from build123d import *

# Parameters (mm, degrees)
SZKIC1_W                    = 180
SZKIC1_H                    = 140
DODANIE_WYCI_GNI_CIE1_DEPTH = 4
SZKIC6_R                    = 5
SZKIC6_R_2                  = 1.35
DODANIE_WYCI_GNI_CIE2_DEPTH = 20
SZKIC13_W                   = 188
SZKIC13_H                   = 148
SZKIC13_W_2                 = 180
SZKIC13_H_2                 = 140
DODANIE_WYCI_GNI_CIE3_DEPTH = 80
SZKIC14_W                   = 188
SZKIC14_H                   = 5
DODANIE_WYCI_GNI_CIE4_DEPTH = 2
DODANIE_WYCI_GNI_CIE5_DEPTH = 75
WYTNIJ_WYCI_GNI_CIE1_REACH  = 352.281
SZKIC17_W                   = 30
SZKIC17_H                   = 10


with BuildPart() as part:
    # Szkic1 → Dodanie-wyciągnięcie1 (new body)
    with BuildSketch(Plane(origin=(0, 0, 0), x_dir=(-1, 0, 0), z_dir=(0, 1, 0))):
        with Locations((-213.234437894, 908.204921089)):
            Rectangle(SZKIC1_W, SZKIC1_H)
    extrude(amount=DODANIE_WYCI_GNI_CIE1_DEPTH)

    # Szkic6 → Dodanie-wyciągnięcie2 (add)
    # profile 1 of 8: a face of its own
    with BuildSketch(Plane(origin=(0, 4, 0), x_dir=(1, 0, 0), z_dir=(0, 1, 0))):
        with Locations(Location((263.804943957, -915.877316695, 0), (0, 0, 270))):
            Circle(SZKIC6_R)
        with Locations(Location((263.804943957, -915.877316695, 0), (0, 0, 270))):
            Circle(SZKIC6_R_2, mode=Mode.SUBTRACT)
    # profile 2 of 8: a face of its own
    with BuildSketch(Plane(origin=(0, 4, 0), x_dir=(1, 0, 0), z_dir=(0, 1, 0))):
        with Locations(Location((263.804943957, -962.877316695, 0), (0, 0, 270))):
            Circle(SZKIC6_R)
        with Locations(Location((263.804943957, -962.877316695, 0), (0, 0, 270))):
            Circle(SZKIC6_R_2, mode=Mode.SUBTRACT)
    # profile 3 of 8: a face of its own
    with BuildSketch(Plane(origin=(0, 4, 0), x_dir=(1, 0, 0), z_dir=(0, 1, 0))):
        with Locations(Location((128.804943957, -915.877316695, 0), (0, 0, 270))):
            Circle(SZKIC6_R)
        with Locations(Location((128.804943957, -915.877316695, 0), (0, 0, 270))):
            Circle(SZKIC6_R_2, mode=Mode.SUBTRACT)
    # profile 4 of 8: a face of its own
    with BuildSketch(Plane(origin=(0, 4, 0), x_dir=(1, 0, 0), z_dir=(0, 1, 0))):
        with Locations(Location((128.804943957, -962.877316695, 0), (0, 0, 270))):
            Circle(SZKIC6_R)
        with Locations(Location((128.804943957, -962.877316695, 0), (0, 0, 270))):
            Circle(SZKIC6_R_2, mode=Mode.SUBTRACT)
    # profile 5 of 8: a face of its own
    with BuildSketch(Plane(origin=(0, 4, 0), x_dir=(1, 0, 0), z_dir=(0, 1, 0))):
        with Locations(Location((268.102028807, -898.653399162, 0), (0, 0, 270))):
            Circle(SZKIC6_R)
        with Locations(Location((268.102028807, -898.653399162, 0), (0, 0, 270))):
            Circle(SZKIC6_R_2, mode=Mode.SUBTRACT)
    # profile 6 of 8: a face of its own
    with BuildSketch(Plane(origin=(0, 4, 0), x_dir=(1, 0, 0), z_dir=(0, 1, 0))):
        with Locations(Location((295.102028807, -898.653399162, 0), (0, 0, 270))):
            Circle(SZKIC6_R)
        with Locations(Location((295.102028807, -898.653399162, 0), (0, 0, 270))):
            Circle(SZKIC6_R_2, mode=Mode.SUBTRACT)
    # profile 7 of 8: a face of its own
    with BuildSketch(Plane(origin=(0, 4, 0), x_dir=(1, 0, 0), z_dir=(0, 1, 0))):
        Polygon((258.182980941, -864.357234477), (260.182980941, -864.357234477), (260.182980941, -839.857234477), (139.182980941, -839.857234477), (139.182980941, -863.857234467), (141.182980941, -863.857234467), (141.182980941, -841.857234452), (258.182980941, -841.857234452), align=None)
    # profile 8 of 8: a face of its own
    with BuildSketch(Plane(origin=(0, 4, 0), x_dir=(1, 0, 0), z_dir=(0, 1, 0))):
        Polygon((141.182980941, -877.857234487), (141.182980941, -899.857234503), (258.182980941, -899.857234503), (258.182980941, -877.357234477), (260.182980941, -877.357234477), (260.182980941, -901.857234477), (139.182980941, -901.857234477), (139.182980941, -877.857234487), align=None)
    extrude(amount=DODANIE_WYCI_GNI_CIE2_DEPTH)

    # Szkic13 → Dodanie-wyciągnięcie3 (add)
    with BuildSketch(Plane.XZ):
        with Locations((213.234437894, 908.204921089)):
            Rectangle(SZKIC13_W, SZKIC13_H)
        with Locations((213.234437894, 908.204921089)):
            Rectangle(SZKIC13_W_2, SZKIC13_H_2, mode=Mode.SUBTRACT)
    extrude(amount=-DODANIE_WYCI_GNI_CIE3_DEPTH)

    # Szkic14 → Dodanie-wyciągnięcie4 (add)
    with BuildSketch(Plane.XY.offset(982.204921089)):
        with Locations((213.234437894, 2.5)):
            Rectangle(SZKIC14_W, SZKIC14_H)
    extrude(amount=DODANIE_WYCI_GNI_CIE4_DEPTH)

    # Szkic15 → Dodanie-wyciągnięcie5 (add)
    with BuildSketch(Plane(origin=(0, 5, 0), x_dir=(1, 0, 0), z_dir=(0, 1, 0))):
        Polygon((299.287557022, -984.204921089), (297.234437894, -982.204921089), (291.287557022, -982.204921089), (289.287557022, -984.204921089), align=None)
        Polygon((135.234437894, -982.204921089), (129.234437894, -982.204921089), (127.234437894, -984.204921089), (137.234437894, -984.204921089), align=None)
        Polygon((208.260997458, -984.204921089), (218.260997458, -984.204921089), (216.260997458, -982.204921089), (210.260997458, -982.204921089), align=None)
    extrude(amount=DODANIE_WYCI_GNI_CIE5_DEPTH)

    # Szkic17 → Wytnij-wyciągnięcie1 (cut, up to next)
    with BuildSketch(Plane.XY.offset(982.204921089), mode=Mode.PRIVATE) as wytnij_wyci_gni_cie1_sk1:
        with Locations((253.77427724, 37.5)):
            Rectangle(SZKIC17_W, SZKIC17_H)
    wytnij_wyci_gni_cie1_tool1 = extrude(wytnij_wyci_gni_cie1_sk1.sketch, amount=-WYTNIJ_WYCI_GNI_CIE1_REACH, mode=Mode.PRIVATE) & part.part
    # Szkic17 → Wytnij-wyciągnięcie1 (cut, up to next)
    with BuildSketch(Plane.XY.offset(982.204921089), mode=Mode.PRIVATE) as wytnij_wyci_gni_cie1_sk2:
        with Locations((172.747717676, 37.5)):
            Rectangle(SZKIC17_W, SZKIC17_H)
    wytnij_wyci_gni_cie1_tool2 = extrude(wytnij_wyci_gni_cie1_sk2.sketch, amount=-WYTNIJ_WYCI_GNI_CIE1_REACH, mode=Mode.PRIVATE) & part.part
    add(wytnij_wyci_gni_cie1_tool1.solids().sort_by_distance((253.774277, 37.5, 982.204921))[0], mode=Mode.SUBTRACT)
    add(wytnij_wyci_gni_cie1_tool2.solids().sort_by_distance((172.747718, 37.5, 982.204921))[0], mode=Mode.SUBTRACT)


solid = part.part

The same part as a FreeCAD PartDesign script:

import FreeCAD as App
import Part
import Sketcher

V = App.Vector


def add_polygon(sketch, points):
    """Adds a closed chain of lines whose ends are joined by coincident constraints."""
    first, n = sketch.GeometryCount, len(points)
    for a, b in zip(points, points[1:] + points[:1]):
        sketch.addGeometry(Part.LineSegment(App.Vector(*a, 0), App.Vector(*b, 0)), False)
    for i in range(n):
        sketch.addConstraint(Sketcher.Constraint("Coincident", first + i, 2, first + (i + 1) % n, 1))

doc = App.newDocument("Part")
body = doc.addObject("PartDesign::Body", "Body")

sketch1 = body.newObject("Sketcher::SketchObject", "Sketch")
sketch1.AttachmentSupport = (doc.getObject("XZ_Plane"), [""])
sketch1.MapMode = "FlatFace"
add_polygon(sketch1, [(303.234438, 978.204921), (303.234438, 838.204921), (123.234438, 838.204921), (123.234438, 978.204921)])
sketch1.addConstraint(Sketcher.Constraint("Vertical", 0))
sketch1.addConstraint(Sketcher.Constraint("Horizontal", 1))
sketch1.addConstraint(Sketcher.Constraint("Vertical", 2))
sketch1.addConstraint(Sketcher.Constraint("Horizontal", 3))
sketch1.addConstraint(Sketcher.Constraint("DistanceX", 1, 2, 1, 1, 180.0))
sketch1.addConstraint(Sketcher.Constraint("DistanceY", 0, 2, 0, 1, 140.0))
sketch1.addConstraint(Sketcher.Constraint("DistanceY", -1, 1, 0, 2, 838.204921))
sketch1.addConstraint(Sketcher.Constraint("DistanceX", -1, 1, 0, 2, 303.234438))
pad1 = body.newObject("PartDesign::Pad", "Pad")
pad1.Profile = sketch1
pad1.Length = 4
pad1.Reversed = True

sketch2 = body.newObject("Sketcher::SketchObject", "Sketch001")
sketch2.AttachmentSupport = (doc.getObject("XZ_Plane"), [""])
sketch2.MapMode = "FlatFace"
sketch2.AttachmentOffset = App.Placement(V(0, 0, -4), App.Rotation())
sketch2.addGeometry(Part.Circle(V(263.804944, 915.877317, 0), V(0, 0, 1), 5), False)
sketch2.addGeometry(Part.Circle(V(263.804944, 915.877317, 0), V(0, 0, 1), 1.35), False)
sketch2.addGeometry(Part.Circle(V(263.804944, 962.877317, 0), V(0, 0, 1), 5), False)
sketch2.addGeometry(Part.Circle(V(263.804944, 962.877317, 0), V(0, 0, 1), 1.35), False)
sketch2.addGeometry(Part.Circle(V(128.804944, 915.877317, 0), V(0, 0, 1), 5), False)
sketch2.addGeometry(Part.Circle(V(128.804944, 915.877317, 0), V(0, 0, 1), 1.35), False)
sketch2.addGeometry(Part.Circle(V(128.804944, 962.877317, 0), V(0, 0, 1), 5), False)
sketch2.addGeometry(Part.Circle(V(128.804944, 962.877317, 0), V(0, 0, 1), 1.35), False)
sketch2.addGeometry(Part.Circle(V(268.102029, 898.653399, 0), V(0, 0, 1), 5), False)
sketch2.addGeometry(Part.Circle(V(268.102029, 898.653399, 0), V(0, 0, 1), 1.35), False)
sketch2.addGeometry(Part.Circle(V(295.102029, 898.653399, 0), V(0, 0, 1), 5), False)
sketch2.addGeometry(Part.Circle(V(295.102029, 898.653399, 0), V(0, 0, 1), 1.35), False)
add_polygon(sketch2, [(258.182981, 864.357234), (260.182981, 864.357234), (260.182981, 839.857234), (139.182981, 839.857234), (139.182981, 863.857234), (141.182981, 863.857234), (141.182981, 841.857234), (258.182981, 841.857234)])
add_polygon(sketch2, [(141.182981, 899.857235), (141.182981, 877.857234), (139.182981, 877.857234), (139.182981, 901.857234), (260.182981, 901.857234), (260.182981, 877.357234), (258.182981, 877.357234), (258.182981, 899.857235)])
sketch2.addConstraint(Sketcher.Constraint("Horizontal", 12))
sketch2.addConstraint(Sketcher.Constraint("Vertical", 13))
sketch2.addConstraint(Sketcher.Constraint("Horizontal", 14))
sketch2.addConstraint(Sketcher.Constraint("Vertical", 15))
sketch2.addConstraint(Sketcher.Constraint("Horizontal", 16))
sketch2.addConstraint(Sketcher.Constraint("Vertical", 17))
sketch2.addConstraint(Sketcher.Constraint("Horizontal", 18))
sketch2.addConstraint(Sketcher.Constraint("Vertical", 19))
sketch2.addConstraint(Sketcher.Constraint("Vertical", 20))
sketch2.addConstraint(Sketcher.Constraint("Horizontal", 21))
sketch2.addConstraint(Sketcher.Constraint("Vertical", 22))
sketch2.addConstraint(Sketcher.Constraint("Horizontal", 23))
sketch2.addConstraint(Sketcher.Constraint("Vertical", 24))
sketch2.addConstraint(Sketcher.Constraint("Horizontal", 25))
sketch2.addConstraint(Sketcher.Constraint("Vertical", 26))
sketch2.addConstraint(Sketcher.Constraint("Horizontal", 27))
sketch2.addConstraint(Sketcher.Constraint("Coincident", 1, 3, 0, 3))
sketch2.addConstraint(Sketcher.Constraint("Coincident", 3, 3, 2, 3))
sketch2.addConstraint(Sketcher.Constraint("Coincident", 5, 3, 4, 3))
sketch2.addConstraint(Sketcher.Constraint("Coincident", 7, 3, 6, 3))
sketch2.addConstraint(Sketcher.Constraint("Coincident", 9, 3, 8, 3))
sketch2.addConstraint(Sketcher.Constraint("Coincident", 11, 3, 10, 3))
sketch2.addConstraint(Sketcher.Constraint("Equal", 0, 2))
sketch2.addConstraint(Sketcher.Constraint("Equal", 1, 3))
sketch2.addConstraint(Sketcher.Constraint("Equal", 2, 4))
sketch2.addConstraint(Sketcher.Constraint("Equal", 3, 5))
sketch2.addConstraint(Sketcher.Constraint("Equal", 4, 6))
sketch2.addConstraint(Sketcher.Constraint("Equal", 5, 7))
sketch2.addConstraint(Sketcher.Constraint("Equal", 6, 8))
sketch2.addConstraint(Sketcher.Constraint("Equal", 7, 9))
sketch2.addConstraint(Sketcher.Constraint("Equal", 8, 10))
sketch2.addConstraint(Sketcher.Constraint("Equal", 9, 11))
sketch2.addConstraint(Sketcher.Constraint("Horizontal", 1, 3, 4, 3))
sketch2.addConstraint(Sketcher.Constraint("Horizontal", 3, 3, 6, 3))
sketch2.addConstraint(Sketcher.Constraint("Horizontal", 9, 3, 10, 3))
sketch2.addConstraint(Sketcher.Constraint("Vertical", 1, 3, 2, 3))
sketch2.addConstraint(Sketcher.Constraint("Vertical", 5, 3, 6, 3))
sketch2.addConstraint(Sketcher.Constraint("Vertical", 17, 2, 20, 2))
sketch2.addConstraint(Sketcher.Constraint("Vertical", 15, 2, 21, 2))
sketch2.addConstraint(Sketcher.Constraint("Vertical", 13, 2, 23, 2))
sketch2.addConstraint(Sketcher.Constraint("Vertical", 19, 2, 25, 2))
sketch2.addConstraint(Sketcher.Constraint("Equal", 12, 16))
sketch2.addConstraint(Sketcher.Constraint("Equal", 17, 20))
sketch2.addConstraint(Sketcher.Constraint("Equal", 15, 22))
sketch2.addConstraint(Sketcher.Constraint("Equal", 13, 24))
sketch2.addConstraint(Sketcher.Constraint("Diameter", 0, 10.0))
sketch2.addConstraint(Sketcher.Constraint("Diameter", 1, 2.7))
sketch2.addConstraint(Sketcher.Constraint("DistanceX", 12, 1, 12, 2, 2.0))
sketch2.addConstraint(Sketcher.Constraint("DistanceX", 14, 2, 14, 1, 121.0))
sketch2.addConstraint(Sketcher.Constraint("DistanceY", 15, 1, 15, 2, 24.0))
sketch2.addConstraint(Sketcher.Constraint("DistanceY", 17, 2, 17, 1, 22.0))
sketch2.addConstraint(Sketcher.Constraint("DistanceY", 13, 2, 13, 1, 24.5))
sketch2.addConstraint(Sketcher.Constraint("DistanceY", 0, 3, 2, 3, 47.0))
sketch2.addConstraint(Sketcher.Constraint("DistanceX", 4, 3, 0, 3, 135.0))
sketch2.addConstraint(Sketcher.Constraint("DistanceX", 8, 3, 10, 3, 27.0))
sketch2.addConstraint(Sketcher.Constraint("DistanceY", 16, 2, 20, 2, 14.0))
sketch2.addConstraint(Sketcher.Constraint("DistanceY", -1, 1, 8, 3, 898.653399))
sketch2.addConstraint(Sketcher.Constraint("DistanceX", -1, 1, 8, 3, 268.102029))
sketch2.addConstraint(Sketcher.Constraint("DistanceX", -1, 1, 12, 2, 260.182981))
sketch2.addConstraint(Sketcher.Constraint("DistanceX", -1, 1, 0, 3, 263.804944))
sketch2.addConstraint(Sketcher.Constraint("DistanceY", -1, 1, 0, 3, 915.877317))
sketch2.addConstraint(Sketcher.Constraint("DistanceY", -1, 1, 12, 2, 864.357234))
pad2 = body.newObject("PartDesign::Pad", "Pad001")
pad2.Profile = sketch2
pad2.Length = 20
pad2.Reversed = True

sketch3 = body.newObject("Sketcher::SketchObject", "Sketch002")
sketch3.AttachmentSupport = (doc.getObject("XZ_Plane"), [""])
sketch3.MapMode = "FlatFace"
add_polygon(sketch3, [(119.234438, 982.204921), (119.234438, 834.204921), (307.234438, 834.204921), (307.234438, 982.204921)])
add_polygon(sketch3, [(303.234438, 838.204921), (123.234438, 838.204921), (123.234438, 978.204921), (303.234438, 978.204921)])
sketch3.addConstraint(Sketcher.Constraint("Vertical", 0))
sketch3.addConstraint(Sketcher.Constraint("Horizontal", 1))
sketch3.addConstraint(Sketcher.Constraint("Vertical", 2))
sketch3.addConstraint(Sketcher.Constraint("Horizontal", 3))
sketch3.addConstraint(Sketcher.Constraint("Horizontal", 4))
sketch3.addConstraint(Sketcher.Constraint("Vertical", 5))
sketch3.addConstraint(Sketcher.Constraint("Horizontal", 6))
sketch3.addConstraint(Sketcher.Constraint("Vertical", 7))
sketch3.addConstraint(Sketcher.Constraint("DistanceX", 1, 1, 1, 2, 188.0))
sketch3.addConstraint(Sketcher.Constraint("DistanceX", 4, 2, 4, 1, 180.0))
sketch3.addConstraint(Sketcher.Constraint("DistanceY", 0, 2, 0, 1, 148.0))
sketch3.addConstraint(Sketcher.Constraint("DistanceY", 5, 1, 5, 2, 140.0))
sketch3.addConstraint(Sketcher.Constraint("DistanceX", 0, 2, 4, 2, 4.0))
sketch3.addConstraint(Sketcher.Constraint("DistanceY", 0, 2, 4, 2, 4.0))
sketch3.addConstraint(Sketcher.Constraint("DistanceY", -1, 1, 0, 2, 834.204921))
sketch3.addConstraint(Sketcher.Constraint("DistanceX", -1, 1, 0, 2, 119.234438))
pad3 = body.newObject("PartDesign::Pad", "Pad002")
pad3.Profile = sketch3
pad3.Length = 80
pad3.Reversed = True

sketch4 = body.newObject("Sketcher::SketchObject", "Sketch003")
sketch4.AttachmentSupport = (doc.getObject("XY_Plane"), [""])
sketch4.MapMode = "FlatFace"
sketch4.AttachmentOffset = App.Placement(V(0, 0, 982.204921), App.Rotation())
add_polygon(sketch4, [(119.234438, 5), (119.234438, 0), (307.234438, 0), (307.234438, 5)])
sketch4.addConstraint(Sketcher.Constraint("Vertical", 0))
sketch4.addConstraint(Sketcher.Constraint("Horizontal", 1))
sketch4.addConstraint(Sketcher.Constraint("Vertical", 2))
sketch4.addConstraint(Sketcher.Constraint("Horizontal", 3))
sketch4.addConstraint(Sketcher.Constraint("PointOnObject", 0, 2, -1))
sketch4.addConstraint(Sketcher.Constraint("DistanceX", 1, 1, 1, 2, 188.0))
sketch4.addConstraint(Sketcher.Constraint("DistanceY", 0, 2, 0, 1, 5.0))
sketch4.addConstraint(Sketcher.Constraint("DistanceX", -1, 1, 0, 2, 119.234438))
pad4 = body.newObject("PartDesign::Pad", "Pad003")
pad4.Profile = sketch4
pad4.Length = 2

sketch5 = body.newObject("Sketcher::SketchObject", "Sketch004")
sketch5.AttachmentSupport = (doc.getObject("XZ_Plane"), [""])
sketch5.MapMode = "FlatFace"
sketch5.AttachmentOffset = App.Placement(V(0, 0, -5), App.Rotation())
add_polygon(sketch5, [(299.287557, 984.204921), (297.234438, 982.204921), (291.287557, 982.204921), (289.287557, 984.204921)])
add_polygon(sketch5, [(135.234438, 982.204921), (129.234438, 982.204921), (127.234438, 984.204921), (137.234438, 984.204921)])
add_polygon(sketch5, [(208.260997, 984.204921), (218.260997, 984.204921), (216.260997, 982.204921), (210.260997, 982.204921)])
sketch5.addConstraint(Sketcher.Constraint("Horizontal", 1))
sketch5.addConstraint(Sketcher.Constraint("Horizontal", 3))
sketch5.addConstraint(Sketcher.Constraint("Horizontal", 4))
sketch5.addConstraint(Sketcher.Constraint("Horizontal", 6))
sketch5.addConstraint(Sketcher.Constraint("Horizontal", 8))
sketch5.addConstraint(Sketcher.Constraint("Horizontal", 10))
sketch5.addConstraint(Sketcher.Constraint("Parallel", 2, 5))
sketch5.addConstraint(Sketcher.Constraint("Perpendicular", 5, 7))
sketch5.addConstraint(Sketcher.Constraint("Parallel", 7, 9))
sketch5.addConstraint(Sketcher.Constraint("Perpendicular", 9, 11))
sketch5.addConstraint(Sketcher.Constraint("Horizontal", 1, 2, 4, 2))
sketch5.addConstraint(Sketcher.Constraint("Horizontal", 3, 2, 5, 2))
sketch5.addConstraint(Sketcher.Constraint("Horizontal", 6, 2, 8, 2))
sketch5.addConstraint(Sketcher.Constraint("Horizontal", 7, 2, 9, 2))
sketch5.addConstraint(Sketcher.Constraint("Equal", 3, 6))
sketch5.addConstraint(Sketcher.Constraint("Equal", 6, 8))
sketch5.addConstraint(Sketcher.Constraint("Equal", 5, 7))
sketch5.addConstraint(Sketcher.Constraint("DistanceX", 3, 1, 3, 2, 10.0))
sketch5.addConstraint(Sketcher.Constraint("DistanceX", 4, 2, 4, 1, 6.0))
sketch5.addConstraint(Sketcher.Constraint("DistanceX", 4, 2, 0, 2, 168.0))
sketch5.addConstraint(Sketcher.Constraint("DistanceX", 1, 2, 1, 1, 5.946881))
sketch5.addConstraint(Sketcher.Constraint("DistanceY", -1, 1, 0, 2, 982.204921))
sketch5.addConstraint(Sketcher.Constraint("DistanceX", 8, 2, 2, 2, 71.02656))
sketch5.addConstraint(Sketcher.Constraint("DistanceX", -1, 1, 0, 2, 297.234438))
pad5 = body.newObject("PartDesign::Pad", "Pad004")
pad5.Profile = sketch5
pad5.Length = 75
pad5.Reversed = True

sketch6 = body.newObject("Sketcher::SketchObject", "Sketch005")
sketch6.AttachmentSupport = (doc.getObject("XY_Plane"), [""])
sketch6.MapMode = "FlatFace"
sketch6.AttachmentOffset = App.Placement(V(0, 0, 982.204921), App.Rotation())
add_polygon(sketch6, [(238.774277, 42.5), (238.774277, 32.5), (268.774277, 32.5), (268.774277, 42.5)])
sketch6.addConstraint(Sketcher.Constraint("Vertical", 0))
sketch6.addConstraint(Sketcher.Constraint("Horizontal", 1))
sketch6.addConstraint(Sketcher.Constraint("Vertical", 2))
sketch6.addConstraint(Sketcher.Constraint("Horizontal", 3))
sketch6.addConstraint(Sketcher.Constraint("DistanceX", 1, 1, 1, 2, 30.0))
sketch6.addConstraint(Sketcher.Constraint("DistanceY", 0, 2, 0, 1, 10.0))
sketch6.addConstraint(Sketcher.Constraint("DistanceY", -1, 1, 0, 2, 32.5))
sketch6.addConstraint(Sketcher.Constraint("DistanceX", -1, 1, 0, 2, 238.774277))
pocket1 = body.newObject("PartDesign::Pocket", "Pocket")
pocket1.Profile = sketch6
pocket1.Type = "UpToFirst"

sketch7 = body.newObject("Sketcher::SketchObject", "Sketch006")
sketch7.AttachmentSupport = (doc.getObject("XY_Plane"), [""])
sketch7.MapMode = "FlatFace"
sketch7.AttachmentOffset = App.Placement(V(0, 0, 982.204921), App.Rotation())
add_polygon(sketch7, [(157.747718, 42.5), (157.747718, 32.5), (187.747718, 32.5), (187.747718, 42.5)])
sketch7.addConstraint(Sketcher.Constraint("Vertical", 0))
sketch7.addConstraint(Sketcher.Constraint("Horizontal", 1))
sketch7.addConstraint(Sketcher.Constraint("Vertical", 2))
sketch7.addConstraint(Sketcher.Constraint("Horizontal", 3))
sketch7.addConstraint(Sketcher.Constraint("DistanceX", 1, 1, 1, 2, 30.0))
sketch7.addConstraint(Sketcher.Constraint("DistanceY", 0, 2, 0, 1, 10.0))
sketch7.addConstraint(Sketcher.Constraint("DistanceY", -1, 1, 0, 2, 32.5))
sketch7.addConstraint(Sketcher.Constraint("DistanceX", -1, 1, 0, 2, 157.747718))
pocket2 = body.newObject("PartDesign::Pocket", "Pocket001")
pocket2.Profile = sketch7
pocket2.Type = "UpToFirst"

doc.recompute()
